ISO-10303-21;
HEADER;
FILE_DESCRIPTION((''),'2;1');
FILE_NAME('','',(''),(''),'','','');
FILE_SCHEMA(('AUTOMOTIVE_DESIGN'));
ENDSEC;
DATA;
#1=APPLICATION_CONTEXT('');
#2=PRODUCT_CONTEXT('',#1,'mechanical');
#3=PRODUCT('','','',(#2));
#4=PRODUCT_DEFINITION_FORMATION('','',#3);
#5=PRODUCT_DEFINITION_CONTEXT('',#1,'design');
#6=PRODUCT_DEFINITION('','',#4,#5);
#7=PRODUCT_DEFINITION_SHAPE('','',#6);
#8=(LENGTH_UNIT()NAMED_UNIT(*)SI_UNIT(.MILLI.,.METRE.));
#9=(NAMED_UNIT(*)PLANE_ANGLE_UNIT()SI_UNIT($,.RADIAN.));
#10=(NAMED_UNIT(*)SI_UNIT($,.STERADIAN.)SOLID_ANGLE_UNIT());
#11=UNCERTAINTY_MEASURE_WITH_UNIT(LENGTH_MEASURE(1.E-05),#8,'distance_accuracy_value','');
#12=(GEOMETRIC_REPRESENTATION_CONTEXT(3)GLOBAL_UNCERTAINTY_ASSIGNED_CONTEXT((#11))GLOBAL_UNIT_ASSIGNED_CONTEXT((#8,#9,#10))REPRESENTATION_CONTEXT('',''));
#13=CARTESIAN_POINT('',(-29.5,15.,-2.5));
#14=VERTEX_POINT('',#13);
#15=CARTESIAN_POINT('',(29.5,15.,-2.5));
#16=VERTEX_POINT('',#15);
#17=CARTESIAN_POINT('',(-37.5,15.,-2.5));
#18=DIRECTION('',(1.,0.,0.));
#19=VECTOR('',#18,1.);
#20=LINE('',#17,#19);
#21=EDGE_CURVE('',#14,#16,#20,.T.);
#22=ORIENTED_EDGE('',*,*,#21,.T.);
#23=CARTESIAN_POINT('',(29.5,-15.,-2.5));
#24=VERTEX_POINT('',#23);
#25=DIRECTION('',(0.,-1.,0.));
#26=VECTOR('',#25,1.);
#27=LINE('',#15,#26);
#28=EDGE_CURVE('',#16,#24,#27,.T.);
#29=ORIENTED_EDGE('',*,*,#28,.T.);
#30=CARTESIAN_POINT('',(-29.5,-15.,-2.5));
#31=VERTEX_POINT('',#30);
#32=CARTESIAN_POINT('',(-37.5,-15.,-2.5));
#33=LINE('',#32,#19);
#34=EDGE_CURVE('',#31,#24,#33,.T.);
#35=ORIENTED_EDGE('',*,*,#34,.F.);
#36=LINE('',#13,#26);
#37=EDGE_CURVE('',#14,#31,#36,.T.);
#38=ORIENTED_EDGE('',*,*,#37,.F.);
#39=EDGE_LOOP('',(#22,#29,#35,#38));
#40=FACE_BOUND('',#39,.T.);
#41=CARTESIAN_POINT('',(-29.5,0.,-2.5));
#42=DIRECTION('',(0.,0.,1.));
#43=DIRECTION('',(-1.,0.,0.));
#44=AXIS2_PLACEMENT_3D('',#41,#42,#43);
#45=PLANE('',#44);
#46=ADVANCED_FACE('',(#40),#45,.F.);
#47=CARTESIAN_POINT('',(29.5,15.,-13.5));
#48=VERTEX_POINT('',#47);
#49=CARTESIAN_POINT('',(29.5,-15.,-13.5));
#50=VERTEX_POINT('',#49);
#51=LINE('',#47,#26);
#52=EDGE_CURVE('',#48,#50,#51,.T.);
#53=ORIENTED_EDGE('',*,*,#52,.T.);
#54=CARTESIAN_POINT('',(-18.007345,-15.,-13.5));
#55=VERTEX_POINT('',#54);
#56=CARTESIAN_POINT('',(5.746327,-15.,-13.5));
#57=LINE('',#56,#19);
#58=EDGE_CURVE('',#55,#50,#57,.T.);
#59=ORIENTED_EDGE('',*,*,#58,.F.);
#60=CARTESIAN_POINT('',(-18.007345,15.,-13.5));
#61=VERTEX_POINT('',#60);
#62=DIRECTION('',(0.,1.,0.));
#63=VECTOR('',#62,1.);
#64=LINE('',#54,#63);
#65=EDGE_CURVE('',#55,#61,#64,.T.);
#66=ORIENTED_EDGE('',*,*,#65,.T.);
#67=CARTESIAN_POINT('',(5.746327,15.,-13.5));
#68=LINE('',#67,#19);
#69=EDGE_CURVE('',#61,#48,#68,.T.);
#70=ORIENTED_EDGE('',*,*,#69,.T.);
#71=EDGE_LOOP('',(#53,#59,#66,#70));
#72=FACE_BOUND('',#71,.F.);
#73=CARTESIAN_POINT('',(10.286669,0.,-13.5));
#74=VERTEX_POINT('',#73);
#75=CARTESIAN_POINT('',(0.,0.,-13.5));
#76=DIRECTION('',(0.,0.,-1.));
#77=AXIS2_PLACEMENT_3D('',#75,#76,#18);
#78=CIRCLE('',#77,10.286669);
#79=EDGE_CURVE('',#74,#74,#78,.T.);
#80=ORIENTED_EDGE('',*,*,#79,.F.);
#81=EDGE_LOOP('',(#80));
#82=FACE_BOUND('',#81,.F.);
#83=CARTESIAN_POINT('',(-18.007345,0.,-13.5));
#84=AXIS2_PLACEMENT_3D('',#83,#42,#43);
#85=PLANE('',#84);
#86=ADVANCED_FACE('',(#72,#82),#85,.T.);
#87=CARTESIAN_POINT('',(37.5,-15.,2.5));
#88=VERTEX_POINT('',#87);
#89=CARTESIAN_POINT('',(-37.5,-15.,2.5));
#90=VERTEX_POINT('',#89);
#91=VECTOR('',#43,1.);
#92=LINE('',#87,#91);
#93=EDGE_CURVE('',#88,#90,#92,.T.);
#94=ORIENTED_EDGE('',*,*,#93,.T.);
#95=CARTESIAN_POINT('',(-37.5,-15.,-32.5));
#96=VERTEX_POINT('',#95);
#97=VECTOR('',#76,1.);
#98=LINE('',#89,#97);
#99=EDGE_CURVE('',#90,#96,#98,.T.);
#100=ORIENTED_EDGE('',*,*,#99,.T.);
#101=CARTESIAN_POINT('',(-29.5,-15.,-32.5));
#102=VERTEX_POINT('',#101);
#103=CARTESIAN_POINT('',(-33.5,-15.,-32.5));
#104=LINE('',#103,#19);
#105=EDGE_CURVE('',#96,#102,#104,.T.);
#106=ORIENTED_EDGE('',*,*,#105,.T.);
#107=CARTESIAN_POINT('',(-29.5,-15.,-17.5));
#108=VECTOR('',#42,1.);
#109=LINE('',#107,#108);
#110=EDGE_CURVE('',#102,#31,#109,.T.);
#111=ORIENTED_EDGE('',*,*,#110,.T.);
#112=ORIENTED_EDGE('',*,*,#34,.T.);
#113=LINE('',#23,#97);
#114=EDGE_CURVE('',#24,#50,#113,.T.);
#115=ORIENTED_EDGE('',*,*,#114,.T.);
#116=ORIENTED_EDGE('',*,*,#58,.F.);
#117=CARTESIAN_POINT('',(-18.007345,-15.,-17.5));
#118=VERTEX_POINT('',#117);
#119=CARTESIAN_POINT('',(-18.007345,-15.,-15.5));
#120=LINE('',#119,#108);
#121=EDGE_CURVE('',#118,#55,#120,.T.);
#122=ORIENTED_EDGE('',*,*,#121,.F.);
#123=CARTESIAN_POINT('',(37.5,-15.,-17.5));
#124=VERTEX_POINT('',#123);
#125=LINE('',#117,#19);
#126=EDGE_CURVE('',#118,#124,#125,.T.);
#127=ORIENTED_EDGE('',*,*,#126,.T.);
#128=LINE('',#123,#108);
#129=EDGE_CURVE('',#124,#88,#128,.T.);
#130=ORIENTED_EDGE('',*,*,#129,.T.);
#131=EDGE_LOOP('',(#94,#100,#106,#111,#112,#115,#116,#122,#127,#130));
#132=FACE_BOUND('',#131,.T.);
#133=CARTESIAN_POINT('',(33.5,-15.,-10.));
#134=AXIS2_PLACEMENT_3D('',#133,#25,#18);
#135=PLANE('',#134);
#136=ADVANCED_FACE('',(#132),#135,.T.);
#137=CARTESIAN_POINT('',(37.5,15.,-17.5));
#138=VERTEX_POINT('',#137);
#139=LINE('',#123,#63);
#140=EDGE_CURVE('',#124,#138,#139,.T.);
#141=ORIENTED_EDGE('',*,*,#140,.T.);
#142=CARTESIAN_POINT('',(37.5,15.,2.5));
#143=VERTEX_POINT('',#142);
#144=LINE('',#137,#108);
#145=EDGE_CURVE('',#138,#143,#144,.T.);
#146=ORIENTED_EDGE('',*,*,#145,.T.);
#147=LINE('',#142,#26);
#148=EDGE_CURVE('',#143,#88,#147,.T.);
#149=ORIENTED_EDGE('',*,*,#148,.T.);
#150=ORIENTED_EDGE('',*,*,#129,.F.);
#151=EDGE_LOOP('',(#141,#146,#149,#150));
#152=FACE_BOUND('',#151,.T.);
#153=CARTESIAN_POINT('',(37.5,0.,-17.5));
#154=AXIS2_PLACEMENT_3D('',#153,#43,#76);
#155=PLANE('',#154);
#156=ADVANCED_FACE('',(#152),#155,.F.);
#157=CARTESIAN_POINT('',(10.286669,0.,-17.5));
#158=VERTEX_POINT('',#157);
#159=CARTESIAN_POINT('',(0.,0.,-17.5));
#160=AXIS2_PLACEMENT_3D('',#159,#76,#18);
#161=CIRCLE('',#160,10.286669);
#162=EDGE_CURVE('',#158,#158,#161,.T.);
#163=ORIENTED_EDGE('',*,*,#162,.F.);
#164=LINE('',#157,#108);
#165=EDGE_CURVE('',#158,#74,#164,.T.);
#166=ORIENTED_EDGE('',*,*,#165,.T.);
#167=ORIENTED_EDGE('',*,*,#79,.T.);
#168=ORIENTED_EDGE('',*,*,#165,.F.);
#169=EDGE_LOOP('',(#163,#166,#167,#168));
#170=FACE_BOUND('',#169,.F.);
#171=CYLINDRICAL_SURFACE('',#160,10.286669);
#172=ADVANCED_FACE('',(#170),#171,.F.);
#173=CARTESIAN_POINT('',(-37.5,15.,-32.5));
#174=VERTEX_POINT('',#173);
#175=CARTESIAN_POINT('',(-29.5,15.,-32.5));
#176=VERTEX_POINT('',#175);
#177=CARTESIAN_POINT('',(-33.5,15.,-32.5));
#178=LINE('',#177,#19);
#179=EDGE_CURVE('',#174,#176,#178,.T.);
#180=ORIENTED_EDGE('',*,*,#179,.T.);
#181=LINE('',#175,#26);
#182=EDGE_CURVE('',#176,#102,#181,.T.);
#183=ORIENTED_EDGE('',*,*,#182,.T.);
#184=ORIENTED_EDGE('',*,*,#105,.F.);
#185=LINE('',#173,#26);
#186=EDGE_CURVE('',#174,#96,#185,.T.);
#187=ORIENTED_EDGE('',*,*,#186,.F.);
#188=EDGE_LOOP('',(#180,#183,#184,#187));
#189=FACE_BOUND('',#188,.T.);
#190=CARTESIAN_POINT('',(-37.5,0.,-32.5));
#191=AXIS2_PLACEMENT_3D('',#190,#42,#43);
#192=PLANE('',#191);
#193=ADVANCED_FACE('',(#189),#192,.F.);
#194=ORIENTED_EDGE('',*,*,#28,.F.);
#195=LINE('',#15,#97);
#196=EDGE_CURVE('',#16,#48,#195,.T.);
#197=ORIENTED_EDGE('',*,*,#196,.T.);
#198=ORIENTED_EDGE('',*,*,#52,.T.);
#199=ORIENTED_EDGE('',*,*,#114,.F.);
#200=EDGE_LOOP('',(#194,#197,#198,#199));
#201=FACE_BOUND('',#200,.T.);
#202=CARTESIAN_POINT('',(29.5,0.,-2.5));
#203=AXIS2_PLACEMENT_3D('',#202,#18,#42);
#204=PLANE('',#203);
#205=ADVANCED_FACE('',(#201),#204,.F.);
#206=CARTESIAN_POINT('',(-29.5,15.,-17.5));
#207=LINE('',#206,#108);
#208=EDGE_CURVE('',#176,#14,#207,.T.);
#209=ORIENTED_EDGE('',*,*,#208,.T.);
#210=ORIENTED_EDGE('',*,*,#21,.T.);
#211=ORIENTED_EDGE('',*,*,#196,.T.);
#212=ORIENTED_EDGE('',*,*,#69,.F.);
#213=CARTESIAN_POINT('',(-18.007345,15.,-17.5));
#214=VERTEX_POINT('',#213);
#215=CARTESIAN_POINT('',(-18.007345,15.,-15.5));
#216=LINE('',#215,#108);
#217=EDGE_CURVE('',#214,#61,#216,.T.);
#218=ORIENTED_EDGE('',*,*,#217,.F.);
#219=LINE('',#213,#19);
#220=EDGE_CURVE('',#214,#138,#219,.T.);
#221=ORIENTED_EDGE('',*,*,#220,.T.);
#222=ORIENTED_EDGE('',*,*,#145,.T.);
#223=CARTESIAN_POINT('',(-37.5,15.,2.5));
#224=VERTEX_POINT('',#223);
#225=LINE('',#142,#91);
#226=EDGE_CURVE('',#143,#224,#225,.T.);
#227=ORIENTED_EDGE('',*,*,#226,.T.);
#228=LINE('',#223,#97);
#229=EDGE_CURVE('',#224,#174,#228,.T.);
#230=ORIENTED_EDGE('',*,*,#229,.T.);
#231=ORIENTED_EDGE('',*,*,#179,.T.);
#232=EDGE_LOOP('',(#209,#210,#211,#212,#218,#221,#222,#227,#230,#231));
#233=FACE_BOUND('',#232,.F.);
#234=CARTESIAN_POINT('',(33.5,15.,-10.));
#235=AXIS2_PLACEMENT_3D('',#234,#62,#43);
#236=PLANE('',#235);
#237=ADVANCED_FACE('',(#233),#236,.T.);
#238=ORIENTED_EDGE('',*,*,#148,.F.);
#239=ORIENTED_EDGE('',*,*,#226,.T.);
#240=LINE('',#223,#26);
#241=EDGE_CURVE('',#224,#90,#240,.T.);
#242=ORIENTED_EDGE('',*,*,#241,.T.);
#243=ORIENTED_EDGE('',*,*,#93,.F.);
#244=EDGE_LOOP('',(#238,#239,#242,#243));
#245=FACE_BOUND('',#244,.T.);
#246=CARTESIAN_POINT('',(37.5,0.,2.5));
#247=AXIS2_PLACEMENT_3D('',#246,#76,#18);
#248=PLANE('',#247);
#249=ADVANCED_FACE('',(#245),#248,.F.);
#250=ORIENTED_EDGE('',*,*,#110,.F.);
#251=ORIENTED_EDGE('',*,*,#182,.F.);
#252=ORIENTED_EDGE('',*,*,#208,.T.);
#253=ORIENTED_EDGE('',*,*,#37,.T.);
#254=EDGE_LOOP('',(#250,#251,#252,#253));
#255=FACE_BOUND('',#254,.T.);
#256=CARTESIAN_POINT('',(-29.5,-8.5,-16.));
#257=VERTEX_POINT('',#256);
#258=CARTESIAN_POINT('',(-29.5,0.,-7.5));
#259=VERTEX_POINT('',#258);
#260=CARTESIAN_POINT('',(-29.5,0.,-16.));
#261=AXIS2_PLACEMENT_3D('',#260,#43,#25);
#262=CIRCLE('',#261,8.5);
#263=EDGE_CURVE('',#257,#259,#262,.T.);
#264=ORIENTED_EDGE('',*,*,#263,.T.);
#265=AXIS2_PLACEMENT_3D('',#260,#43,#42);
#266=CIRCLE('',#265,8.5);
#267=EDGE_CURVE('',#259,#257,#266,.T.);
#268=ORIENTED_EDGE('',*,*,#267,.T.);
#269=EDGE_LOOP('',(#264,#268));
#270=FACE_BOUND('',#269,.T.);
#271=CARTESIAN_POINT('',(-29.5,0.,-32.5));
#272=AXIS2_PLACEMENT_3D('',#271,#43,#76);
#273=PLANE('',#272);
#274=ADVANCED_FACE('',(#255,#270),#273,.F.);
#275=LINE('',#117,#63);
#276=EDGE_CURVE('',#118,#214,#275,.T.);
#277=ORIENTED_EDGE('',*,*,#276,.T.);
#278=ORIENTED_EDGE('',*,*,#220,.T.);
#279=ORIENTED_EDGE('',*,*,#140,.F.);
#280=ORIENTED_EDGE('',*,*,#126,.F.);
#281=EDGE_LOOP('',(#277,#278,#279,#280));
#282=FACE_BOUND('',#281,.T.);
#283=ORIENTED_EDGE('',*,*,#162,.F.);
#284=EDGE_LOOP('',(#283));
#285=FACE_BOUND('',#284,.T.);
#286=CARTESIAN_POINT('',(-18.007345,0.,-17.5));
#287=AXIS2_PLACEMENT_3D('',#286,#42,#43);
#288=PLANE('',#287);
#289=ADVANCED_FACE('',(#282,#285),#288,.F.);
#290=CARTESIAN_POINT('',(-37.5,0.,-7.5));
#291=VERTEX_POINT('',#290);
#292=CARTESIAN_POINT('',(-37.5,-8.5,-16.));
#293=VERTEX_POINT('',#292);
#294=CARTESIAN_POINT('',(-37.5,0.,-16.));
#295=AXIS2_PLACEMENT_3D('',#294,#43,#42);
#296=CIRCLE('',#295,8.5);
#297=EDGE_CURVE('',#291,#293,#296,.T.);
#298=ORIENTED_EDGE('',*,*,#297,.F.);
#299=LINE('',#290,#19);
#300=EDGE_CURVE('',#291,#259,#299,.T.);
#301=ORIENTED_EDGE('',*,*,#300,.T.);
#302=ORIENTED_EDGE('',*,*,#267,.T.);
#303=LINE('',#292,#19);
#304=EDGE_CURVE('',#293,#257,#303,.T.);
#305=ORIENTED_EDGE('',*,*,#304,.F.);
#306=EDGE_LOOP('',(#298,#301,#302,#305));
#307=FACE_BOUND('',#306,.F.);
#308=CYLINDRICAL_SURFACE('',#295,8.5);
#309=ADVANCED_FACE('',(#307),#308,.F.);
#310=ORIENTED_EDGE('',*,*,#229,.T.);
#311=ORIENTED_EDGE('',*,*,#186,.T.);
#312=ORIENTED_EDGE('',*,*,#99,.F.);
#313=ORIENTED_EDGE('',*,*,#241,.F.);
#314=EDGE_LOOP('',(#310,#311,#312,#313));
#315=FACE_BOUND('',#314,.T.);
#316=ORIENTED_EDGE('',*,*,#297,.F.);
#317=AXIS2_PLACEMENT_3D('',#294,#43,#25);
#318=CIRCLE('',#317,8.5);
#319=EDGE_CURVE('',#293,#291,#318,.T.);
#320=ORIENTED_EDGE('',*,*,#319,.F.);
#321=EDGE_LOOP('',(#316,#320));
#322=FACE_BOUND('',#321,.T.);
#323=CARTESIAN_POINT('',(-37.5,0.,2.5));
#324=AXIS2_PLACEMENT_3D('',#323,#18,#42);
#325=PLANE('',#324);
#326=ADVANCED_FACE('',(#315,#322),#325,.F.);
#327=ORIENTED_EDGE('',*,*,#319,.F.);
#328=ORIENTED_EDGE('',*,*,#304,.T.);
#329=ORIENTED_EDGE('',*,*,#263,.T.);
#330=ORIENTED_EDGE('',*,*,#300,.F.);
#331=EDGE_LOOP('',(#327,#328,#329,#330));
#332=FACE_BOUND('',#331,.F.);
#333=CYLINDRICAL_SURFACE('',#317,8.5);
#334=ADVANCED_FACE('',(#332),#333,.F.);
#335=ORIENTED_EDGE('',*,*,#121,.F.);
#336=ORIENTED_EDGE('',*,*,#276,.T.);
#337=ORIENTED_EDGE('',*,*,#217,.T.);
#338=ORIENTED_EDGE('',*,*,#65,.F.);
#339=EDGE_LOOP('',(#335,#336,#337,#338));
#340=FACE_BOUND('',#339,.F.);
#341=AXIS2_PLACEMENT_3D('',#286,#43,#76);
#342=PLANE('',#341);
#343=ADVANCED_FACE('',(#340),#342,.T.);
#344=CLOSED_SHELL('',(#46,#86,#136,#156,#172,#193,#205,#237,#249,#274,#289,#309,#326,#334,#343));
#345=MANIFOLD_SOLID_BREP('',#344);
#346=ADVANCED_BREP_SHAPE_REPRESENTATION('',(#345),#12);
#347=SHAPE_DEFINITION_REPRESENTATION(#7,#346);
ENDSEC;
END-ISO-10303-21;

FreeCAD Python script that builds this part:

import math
import FreeCAD as App
import Part
import Sketcher

V = App.Vector

doc = App.newDocument("Part")
params = doc.addObject("Spreadsheet::Sheet", "Params")
for row, (alias, value) in enumerate([
    ("sketch1_width", "75 mm"),
    ("sketch1_width2", "8 mm"),
    ("sketch1_width3", "59 mm"),
    ("sketch1_height", "20 mm"),
    ("sketch1_height2", "35 mm"),
    ("pad1_length", "15 mm"),
    ("pocket1_length", "10 mm"),
    ("sketch3_radius", "8.5 mm"),
    ("pocket2_length", "10 mm"),
], start=1):
    params.set(f"A{row}", alias)
    params.set(f"B{row}", "=" + value)
    params.setAlias(f"B{row}", alias)

body = doc.addObject("PartDesign::Body", "Body")

sketch1 = body.newObject("Sketcher::SketchObject", "Sketch")
sketch1.AttachmentSupport = (doc.getObject("XZ_Plane"), [""])
sketch1.MapMode = "FlatFace"
sketch1.addGeometry([
    Part.LineSegment(V(37.5, -17.5, 0), V(37.5, 2.5, 0)),
    Part.LineSegment(V(37.5, 2.5, 0), V(-37.5, 2.5, 0)),
    Part.LineSegment(V(-37.5, 2.5, 0), V(-37.5, -32.5, 0)),
    Part.LineSegment(V(-37.5, -32.5, 0), V(-29.5, -32.5, 0)),
    Part.LineSegment(V(-29.5, -32.5, 0), V(-29.5, -2.5, 0)),
    Part.LineSegment(V(-29.5, -2.5, 0), V(29.5, -2.5, 0)),
    Part.LineSegment(V(29.5, -2.5, 0), V(29.5, -13.5, 0)),
    Part.LineSegment(V(29.5, -13.5, 0), V(-18, -13.5, 0)),
    Part.LineSegment(V(-18, -13.5, 0), V(-18, -17.5, 0)),
    Part.LineSegment(V(-18, -17.5, 0), V(37.5, -17.5, 0)),
], False)
sketch1.addConstraint([
    Sketcher.Constraint("Coincident", 0, 2, 1, 1),
    Sketcher.Constraint("Coincident", 1, 2, 2, 1),
    Sketcher.Constraint("Coincident", 2, 2, 3, 1),
    Sketcher.Constraint("Coincident", 3, 2, 4, 1),
    Sketcher.Constraint("Coincident", 4, 2, 5, 1),
    Sketcher.Constraint("Coincident", 5, 2, 6, 1),
    Sketcher.Constraint("Coincident", 6, 2, 7, 1),
    Sketcher.Constraint("Coincident", 7, 2, 8, 1),
    Sketcher.Constraint("Coincident", 8, 2, 9, 1),
    Sketcher.Constraint("Coincident", 9, 2, 0, 1),
    Sketcher.Constraint("Vertical", 0),
    Sketcher.Constraint("Horizontal", 1),
    Sketcher.Constraint("Vertical", 2),
    Sketcher.Constraint("Horizontal", 3),
    Sketcher.Constraint("Vertical", 4),
    Sketcher.Constraint("Horizontal", 5),
    Sketcher.Constraint("Vertical", 6),
    Sketcher.Constraint("Horizontal", 7),
    Sketcher.Constraint("Vertical", 8),
    Sketcher.Constraint("Horizontal", 9),
    Sketcher.Constraint("DistanceX", 1, 2, 1, 1, 75.0),
    Sketcher.Constraint("DistanceX", 3, 1, 3, 2, 8.0),
    Sketcher.Constraint("DistanceX", 5, 1, 5, 2, 59.0),
    Sketcher.Constraint("DistanceY", 0, 1, 0, 2, 20.0),
    Sketcher.Constraint("DistanceY", 2, 2, 2, 1, 35.0),
    Sketcher.Constraint("DistanceY", 4, 1, 4, 2, 30.0),
    Sketcher.Constraint("DistanceY", 6, 2, 6, 1, 11.0),
    Sketcher.Constraint("DistanceX", -1, 1, 0, 2, 37.5),
    Sketcher.Constraint("DistanceY", -1, 1, 0, 2, 2.5),
    Sketcher.Constraint("DistanceX", 7, 2, 7, 1, 47.507345),
])
sketch1.setExpression("Constraints[20]", "Params.sketch1_width")
sketch1.setExpression("Constraints[21]", "Params.sketch1_width2")
sketch1.setExpression("Constraints[22]", "Params.sketch1_width3")
sketch1.setExpression("Constraints[23]", "Params.sketch1_height")
sketch1.setExpression("Constraints[24]", "Params.sketch1_height2")
pad1 = body.newObject("PartDesign::Pad", "Pad")
pad1.Profile = sketch1
pad1.setExpression("Length", "Params.pad1_length")
body2 = doc.addObject("PartDesign::Body", "Body001")
doc.recompute()

body2.BaseFeature = body
doc.recompute()

mirroring = doc.addObject("Part::Mirroring", "Mirroring")
mirroring.Source = body
mirroring.Base = V(0, 0, 0)
mirroring.Normal = V(0, -1, 0)
body3 = doc.addObject("PartDesign::Body", "Body002")
body3.BaseFeature = mirroring
boolean = body2.newObject("PartDesign::Boolean", "Boolean")
boolean.Type = "Fuse"
boolean.addObjects([body3])
doc.recompute()

sketch2 = body2.newObject("Sketcher::SketchObject", "Sketch001")
sketch2.AttachmentSupport = (doc.getObject("XY_Plane001"), [""])
sketch2.MapMode = "FlatFace"
sketch2.AttachmentOffset = App.Placement(V(0, 0, -17.5), App.Rotation())
sketch2.addGeometry(Part.Circle(V(0, 0, 0), V(0, 0, 1), 10), False)
sketch2.addConstraint([
    Sketcher.Constraint("Coincident", 0, 3, -1, 1),
    Sketcher.Constraint("Diameter", 0, 20.573338),
])
pocket1 = body2.newObject("PartDesign::Pocket", "Pocket")
pocket1.Profile = sketch2
pocket1.setExpression("Length", "Params.pocket1_length")
pocket1.Reversed = True

sketch3 = body2.newObject("Sketcher::SketchObject", "Sketch002")
sketch3.AttachmentSupport = (doc.getObject("YZ_Plane001"), [""])
sketch3.MapMode = "FlatFace"
sketch3.AttachmentOffset = App.Placement(V(0, 0, -37.5), App.Rotation())
sketch3.addGeometry([
    Part.ArcOfCircle(Part.Circle(V(0, -16, 0), V(0, 0, 1), 8), math.radians(90), math.radians(180)),
    Part.ArcOfCircle(Part.Circle(V(0, -16, 0), V(0, 0, 1), 8), math.radians(180), math.radians(450)),
], False)
sketch3.addConstraint([
    Sketcher.Constraint("Tangent", 0, 1, 1, 2),
    Sketcher.Constraint("Coincident", 1, 1, 0, 2),
    Sketcher.Constraint("PointOnObject", 0, 3, -2),
    Sketcher.Constraint("PointOnObject", 0, 1, -2),
    Sketcher.Constraint("Horizontal", 0, 3, 1, 1),
    Sketcher.Constraint("Radius", 0, 8.5),
    Sketcher.Constraint("DistanceY", 0, 3, -1, 1, 16.0),
])
sketch3.setExpression("Constraints[5]", "Params.sketch3_radius")
pocket2 = body2.newObject("PartDesign::Pocket", "Pocket001")
pocket2.Profile = sketch3
pocket2.setExpression("Length", "Params.pocket2_length")
pocket2.Reversed = True
mirroring.Visibility = False

doc.recompute()
